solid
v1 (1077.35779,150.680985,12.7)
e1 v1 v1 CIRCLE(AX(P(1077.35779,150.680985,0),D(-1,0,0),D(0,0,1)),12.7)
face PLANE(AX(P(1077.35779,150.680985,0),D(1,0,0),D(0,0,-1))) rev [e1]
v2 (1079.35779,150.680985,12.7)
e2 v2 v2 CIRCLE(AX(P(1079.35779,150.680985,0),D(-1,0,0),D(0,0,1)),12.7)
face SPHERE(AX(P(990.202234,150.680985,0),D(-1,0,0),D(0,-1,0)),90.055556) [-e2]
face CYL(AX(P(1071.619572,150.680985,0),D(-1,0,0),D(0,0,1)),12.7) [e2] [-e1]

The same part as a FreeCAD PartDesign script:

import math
import FreeCAD as App
import Part
import Sketcher
Q = App.Units.Quantity

doc = App.newDocument("Part")
params = doc.addObject("Spreadsheet::Sheet", "Params")
for row, (alias, value) in enumerate([
    ("sketch1_width", "2 mm"),
    ("sketch1_width2", "2.9 mm"),
    ("sketch1_height", "12.7 mm"),
    ("revolution_angle", "360 deg"),
], start=1):
    params.set(f"A{row}", alias)
    params.set(f"B{row}", "=" + value)
    params.setAlias(f"B{row}", alias)

body = doc.addObject("PartDesign::Body", "Body")

sketch1 = body.newObject("Sketcher::SketchObject", "Sketch")
sketch1.AttachmentSupport = (doc.getObject("XY_Plane"), [""])
sketch1.MapMode = "FlatFace"
sketch1.addGeometry([
    Part.LineSegment(App.Vector(1077.35779, 163.380985, 0), App.Vector(1077.35779, 150.680985, 0)),
    Part.LineSegment(App.Vector(1077.35779, 150.680985, 0), App.Vector(1080.25779, 150.680985, 0)),
    Part.ArcOfCircle(Part.Circle(App.Vector(990.202234, 150.680985, 0), App.Vector(0, 0, 1), 90.055556), math.radians(0), math.radians(8.107108)),
    Part.LineSegment(App.Vector(1079.35779, 163.380985, 0), App.Vector(1077.35779, 163.380985, 0)),
], False)
sketch1.addGeometry(Part.LineSegment(App.Vector(990.202234, 150.680985, 0), App.Vector(1080.25779, 150.680985, 0)), True)
sketch1.addConstraint([
    Sketcher.Constraint("Coincident", 0, 2, 1, 1),
    Sketcher.Constraint("Coincident", 1, 2, 2, 1),
    Sketcher.Constraint("Coincident", 2, 2, 3, 1),
    Sketcher.Constraint("Coincident", 3, 2, 0, 1),
    Sketcher.Constraint("Vertical", 0),
    Sketcher.Constraint("Horizontal", 1),
    Sketcher.Constraint("Horizontal", 3),
    Sketcher.Constraint("Horizontal", 4),
    Sketcher.Constraint("Coincident", 4, 1, 2, 3),
    Sketcher.Constraint("Coincident", 4, 2, 1, 2),
    Sketcher.Constraint("DistanceX", 3, 2, 3, 1, Q("2 mm")),
    Sketcher.Constraint("DistanceX", 1, 1, 1, 2, Q("2.9 mm")),
    Sketcher.Constraint("DistanceY", 0, 2, 0, 1, Q("12.7 mm")),
    Sketcher.Constraint("DistanceX", -1, 1, 0, 2, Q("1077.35779 mm")),
    Sketcher.Constraint("DistanceY", -1, 1, 2, 3, Q("150.680985 mm")),
])
sketch1.setExpression("Constraints[10]", "Params.sketch1_width")
sketch1.setExpression("Constraints[11]", "Params.sketch1_width2")
sketch1.setExpression("Constraints[12]", "Params.sketch1_height")
revolution = body.newObject("PartDesign::Revolution", "Revolution")
revolution.Profile = sketch1
revolution.ReferenceAxis = (sketch1, ["Axis0"])
revolution.setExpression("Angle", "Params.revolution_angle")

doc.recompute()
